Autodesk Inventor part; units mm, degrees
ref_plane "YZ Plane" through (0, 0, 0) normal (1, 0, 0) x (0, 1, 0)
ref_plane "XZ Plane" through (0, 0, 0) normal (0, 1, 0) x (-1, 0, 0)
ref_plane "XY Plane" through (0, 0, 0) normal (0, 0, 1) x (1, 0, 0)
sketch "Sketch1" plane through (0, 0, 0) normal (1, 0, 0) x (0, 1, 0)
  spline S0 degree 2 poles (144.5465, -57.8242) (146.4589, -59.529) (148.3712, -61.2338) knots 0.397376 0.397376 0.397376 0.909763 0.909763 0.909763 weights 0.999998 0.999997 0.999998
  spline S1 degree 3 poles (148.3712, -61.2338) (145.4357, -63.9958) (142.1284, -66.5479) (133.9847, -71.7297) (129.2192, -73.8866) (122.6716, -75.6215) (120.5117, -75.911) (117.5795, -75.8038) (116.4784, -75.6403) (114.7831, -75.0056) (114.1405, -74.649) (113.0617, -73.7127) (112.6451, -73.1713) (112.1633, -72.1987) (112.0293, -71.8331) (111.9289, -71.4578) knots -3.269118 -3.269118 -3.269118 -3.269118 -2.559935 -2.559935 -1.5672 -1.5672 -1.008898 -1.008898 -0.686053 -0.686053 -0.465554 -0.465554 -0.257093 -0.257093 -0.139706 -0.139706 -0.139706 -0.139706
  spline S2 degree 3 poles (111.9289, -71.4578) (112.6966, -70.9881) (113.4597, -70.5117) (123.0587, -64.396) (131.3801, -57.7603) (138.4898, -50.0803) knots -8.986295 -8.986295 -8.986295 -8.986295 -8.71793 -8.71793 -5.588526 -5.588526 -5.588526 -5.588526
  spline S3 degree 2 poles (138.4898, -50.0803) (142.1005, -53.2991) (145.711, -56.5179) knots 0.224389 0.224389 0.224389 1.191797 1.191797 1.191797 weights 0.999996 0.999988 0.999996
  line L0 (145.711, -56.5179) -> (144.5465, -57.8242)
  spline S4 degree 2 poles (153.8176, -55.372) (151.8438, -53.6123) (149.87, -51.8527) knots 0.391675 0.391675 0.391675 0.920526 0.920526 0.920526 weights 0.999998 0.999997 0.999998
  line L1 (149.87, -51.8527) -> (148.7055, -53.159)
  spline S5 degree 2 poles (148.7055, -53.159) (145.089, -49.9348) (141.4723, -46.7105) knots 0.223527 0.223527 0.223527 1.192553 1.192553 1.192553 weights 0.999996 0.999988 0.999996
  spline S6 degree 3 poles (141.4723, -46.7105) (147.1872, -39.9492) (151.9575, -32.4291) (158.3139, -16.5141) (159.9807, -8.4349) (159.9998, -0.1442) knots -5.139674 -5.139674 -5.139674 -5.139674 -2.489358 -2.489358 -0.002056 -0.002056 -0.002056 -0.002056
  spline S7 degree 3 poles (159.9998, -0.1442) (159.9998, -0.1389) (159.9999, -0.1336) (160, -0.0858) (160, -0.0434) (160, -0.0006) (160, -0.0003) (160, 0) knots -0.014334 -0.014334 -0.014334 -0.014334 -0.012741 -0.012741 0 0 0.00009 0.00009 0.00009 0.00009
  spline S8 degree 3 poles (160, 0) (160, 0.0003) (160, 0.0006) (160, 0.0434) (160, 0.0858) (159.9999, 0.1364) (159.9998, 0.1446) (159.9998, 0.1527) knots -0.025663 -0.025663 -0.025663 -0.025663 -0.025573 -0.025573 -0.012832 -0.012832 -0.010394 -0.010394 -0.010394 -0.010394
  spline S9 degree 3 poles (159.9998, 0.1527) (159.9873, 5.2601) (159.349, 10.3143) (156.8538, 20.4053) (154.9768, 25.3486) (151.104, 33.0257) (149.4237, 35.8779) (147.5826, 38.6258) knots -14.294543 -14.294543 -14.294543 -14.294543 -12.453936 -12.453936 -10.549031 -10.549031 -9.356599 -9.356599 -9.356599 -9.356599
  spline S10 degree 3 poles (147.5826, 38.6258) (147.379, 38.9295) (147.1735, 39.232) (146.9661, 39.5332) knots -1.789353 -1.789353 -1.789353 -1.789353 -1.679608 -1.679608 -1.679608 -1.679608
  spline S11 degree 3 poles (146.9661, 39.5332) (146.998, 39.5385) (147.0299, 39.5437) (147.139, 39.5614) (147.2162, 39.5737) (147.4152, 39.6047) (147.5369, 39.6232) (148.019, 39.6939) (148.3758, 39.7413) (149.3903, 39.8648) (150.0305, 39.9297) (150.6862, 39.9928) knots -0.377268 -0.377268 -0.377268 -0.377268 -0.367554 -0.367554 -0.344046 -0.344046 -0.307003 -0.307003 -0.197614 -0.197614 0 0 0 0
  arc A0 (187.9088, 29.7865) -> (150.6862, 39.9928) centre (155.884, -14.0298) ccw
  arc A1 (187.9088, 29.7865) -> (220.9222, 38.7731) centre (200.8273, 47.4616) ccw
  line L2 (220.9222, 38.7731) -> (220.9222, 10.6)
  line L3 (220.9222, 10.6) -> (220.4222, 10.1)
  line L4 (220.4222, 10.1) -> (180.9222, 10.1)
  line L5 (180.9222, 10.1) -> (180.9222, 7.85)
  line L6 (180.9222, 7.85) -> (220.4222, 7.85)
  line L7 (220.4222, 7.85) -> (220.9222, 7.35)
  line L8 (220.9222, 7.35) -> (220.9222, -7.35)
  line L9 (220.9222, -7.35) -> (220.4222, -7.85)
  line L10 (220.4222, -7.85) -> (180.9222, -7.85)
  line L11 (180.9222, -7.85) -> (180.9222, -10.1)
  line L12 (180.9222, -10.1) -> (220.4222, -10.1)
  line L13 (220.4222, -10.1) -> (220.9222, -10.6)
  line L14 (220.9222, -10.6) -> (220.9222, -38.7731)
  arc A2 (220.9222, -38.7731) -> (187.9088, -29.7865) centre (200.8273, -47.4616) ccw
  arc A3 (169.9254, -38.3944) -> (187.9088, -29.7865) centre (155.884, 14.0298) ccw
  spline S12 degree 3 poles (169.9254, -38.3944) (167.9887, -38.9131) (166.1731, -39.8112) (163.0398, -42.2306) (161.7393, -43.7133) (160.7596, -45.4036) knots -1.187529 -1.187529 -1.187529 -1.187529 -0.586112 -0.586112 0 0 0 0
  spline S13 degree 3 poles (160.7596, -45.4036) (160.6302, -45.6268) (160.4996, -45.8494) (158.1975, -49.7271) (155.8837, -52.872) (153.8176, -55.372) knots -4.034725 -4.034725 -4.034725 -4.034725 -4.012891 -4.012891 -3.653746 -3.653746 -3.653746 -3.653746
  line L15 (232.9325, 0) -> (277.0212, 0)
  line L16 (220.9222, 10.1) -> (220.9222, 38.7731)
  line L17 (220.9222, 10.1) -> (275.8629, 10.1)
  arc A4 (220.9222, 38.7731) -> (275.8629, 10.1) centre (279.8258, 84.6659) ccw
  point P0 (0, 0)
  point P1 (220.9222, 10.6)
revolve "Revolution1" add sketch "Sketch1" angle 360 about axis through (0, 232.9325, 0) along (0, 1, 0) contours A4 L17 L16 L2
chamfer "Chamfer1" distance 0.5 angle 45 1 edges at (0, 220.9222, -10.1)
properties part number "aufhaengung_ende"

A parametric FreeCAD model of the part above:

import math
import FreeCAD as App
import Part
import Sketcher
Q = App.Units.Quantity


def edges_at(feature, points):
    """Names of the edges that pass closest to the given points."""
    edges = feature.Shape.Edges
    near = lambda p: min(range(len(edges)), key=lambda i: edges[i].distToShape(Part.Vertex(*p))[0])
    return sorted({f"Edge{near(p) + 1}" for p in points})

doc = App.newDocument("Part")
params = doc.addObject("Spreadsheet::Sheet", "Params")
for row, (alias, value) in enumerate([
    ("revolution_angle", "360 deg"),
    ("chamfer_size", "0.5 mm"),
], start=1):
    params.set(f"A{row}", alias)
    params.set(f"B{row}", "=" + value)
    params.setAlias(f"B{row}", alias)

body = doc.addObject("PartDesign::Body", "Body")

# Sketch on YZ plane
sketch1 = body.newObject("Sketcher::SketchObject", "Sketch")
sketch1.AttachmentSupport = (doc.getObject("YZ_Plane"), [""])
sketch1.MapMode = "FlatFace"
sketch1.addGeometry(Part.ArcOfCircle(Part.Circle(App.Vector(279.8258, 84.6659, 0), App.Vector(0, 0, 1), 74.671167), math.radians(-142.077235), math.radians(-93.042195)), False)
sketch1.addGeometry(Part.LineSegment(App.Vector(220.9222, 38.7731, 0), App.Vector(220.9222, 10.1, 0)), False)
sketch1.addGeometry(Part.LineSegment(App.Vector(220.9222, 10.1, 0), App.Vector(275.8629, 10.1, 0)), False)
sketch1.addConstraint(Sketcher.Constraint("Coincident", 0, 1, 1, 1))
sketch1.addConstraint(Sketcher.Constraint("Coincident", 1, 2, 2, 1))
sketch1.addConstraint(Sketcher.Constraint("Coincident", 2, 2, 0, 2))
sketch1.addConstraint(Sketcher.Constraint("Vertical", 1))
sketch1.addConstraint(Sketcher.Constraint("Horizontal", 2))
sketch1.addConstraint(Sketcher.Constraint("DistanceY", -1, 1, 1, 2, Q("10.1 mm")))
sketch1.addConstraint(Sketcher.Constraint("Radius", 0, Q("74.6712 mm")))
sketch1.addConstraint(Sketcher.Constraint("DistanceY", 1, 2, 1, 1, Q("28.673 mm")))
sketch1.addConstraint(Sketcher.Constraint("DistanceX", 2, 1, 2, 2, Q("54.9407 mm")))
sketch1.addConstraint(Sketcher.Constraint("DistanceX", -1, 1, 2, 2, Q("275.863 mm")))
revolution = body.newObject("PartDesign::Revolution", "Revolution")
revolution.Profile = sketch1
revolution.ReferenceAxis = (sketch1, ["H_Axis"])
revolution.setExpression("Angle", "Params.revolution_angle")
doc.recompute()

chamfer = body.newObject("PartDesign::Chamfer", "Chamfer")
chamfer.Base = (revolution, edges_at(revolution, [(0, 220.922, -10.1)]))
chamfer.setExpression("Size", "Params.chamfer_size")

doc.recompute()
